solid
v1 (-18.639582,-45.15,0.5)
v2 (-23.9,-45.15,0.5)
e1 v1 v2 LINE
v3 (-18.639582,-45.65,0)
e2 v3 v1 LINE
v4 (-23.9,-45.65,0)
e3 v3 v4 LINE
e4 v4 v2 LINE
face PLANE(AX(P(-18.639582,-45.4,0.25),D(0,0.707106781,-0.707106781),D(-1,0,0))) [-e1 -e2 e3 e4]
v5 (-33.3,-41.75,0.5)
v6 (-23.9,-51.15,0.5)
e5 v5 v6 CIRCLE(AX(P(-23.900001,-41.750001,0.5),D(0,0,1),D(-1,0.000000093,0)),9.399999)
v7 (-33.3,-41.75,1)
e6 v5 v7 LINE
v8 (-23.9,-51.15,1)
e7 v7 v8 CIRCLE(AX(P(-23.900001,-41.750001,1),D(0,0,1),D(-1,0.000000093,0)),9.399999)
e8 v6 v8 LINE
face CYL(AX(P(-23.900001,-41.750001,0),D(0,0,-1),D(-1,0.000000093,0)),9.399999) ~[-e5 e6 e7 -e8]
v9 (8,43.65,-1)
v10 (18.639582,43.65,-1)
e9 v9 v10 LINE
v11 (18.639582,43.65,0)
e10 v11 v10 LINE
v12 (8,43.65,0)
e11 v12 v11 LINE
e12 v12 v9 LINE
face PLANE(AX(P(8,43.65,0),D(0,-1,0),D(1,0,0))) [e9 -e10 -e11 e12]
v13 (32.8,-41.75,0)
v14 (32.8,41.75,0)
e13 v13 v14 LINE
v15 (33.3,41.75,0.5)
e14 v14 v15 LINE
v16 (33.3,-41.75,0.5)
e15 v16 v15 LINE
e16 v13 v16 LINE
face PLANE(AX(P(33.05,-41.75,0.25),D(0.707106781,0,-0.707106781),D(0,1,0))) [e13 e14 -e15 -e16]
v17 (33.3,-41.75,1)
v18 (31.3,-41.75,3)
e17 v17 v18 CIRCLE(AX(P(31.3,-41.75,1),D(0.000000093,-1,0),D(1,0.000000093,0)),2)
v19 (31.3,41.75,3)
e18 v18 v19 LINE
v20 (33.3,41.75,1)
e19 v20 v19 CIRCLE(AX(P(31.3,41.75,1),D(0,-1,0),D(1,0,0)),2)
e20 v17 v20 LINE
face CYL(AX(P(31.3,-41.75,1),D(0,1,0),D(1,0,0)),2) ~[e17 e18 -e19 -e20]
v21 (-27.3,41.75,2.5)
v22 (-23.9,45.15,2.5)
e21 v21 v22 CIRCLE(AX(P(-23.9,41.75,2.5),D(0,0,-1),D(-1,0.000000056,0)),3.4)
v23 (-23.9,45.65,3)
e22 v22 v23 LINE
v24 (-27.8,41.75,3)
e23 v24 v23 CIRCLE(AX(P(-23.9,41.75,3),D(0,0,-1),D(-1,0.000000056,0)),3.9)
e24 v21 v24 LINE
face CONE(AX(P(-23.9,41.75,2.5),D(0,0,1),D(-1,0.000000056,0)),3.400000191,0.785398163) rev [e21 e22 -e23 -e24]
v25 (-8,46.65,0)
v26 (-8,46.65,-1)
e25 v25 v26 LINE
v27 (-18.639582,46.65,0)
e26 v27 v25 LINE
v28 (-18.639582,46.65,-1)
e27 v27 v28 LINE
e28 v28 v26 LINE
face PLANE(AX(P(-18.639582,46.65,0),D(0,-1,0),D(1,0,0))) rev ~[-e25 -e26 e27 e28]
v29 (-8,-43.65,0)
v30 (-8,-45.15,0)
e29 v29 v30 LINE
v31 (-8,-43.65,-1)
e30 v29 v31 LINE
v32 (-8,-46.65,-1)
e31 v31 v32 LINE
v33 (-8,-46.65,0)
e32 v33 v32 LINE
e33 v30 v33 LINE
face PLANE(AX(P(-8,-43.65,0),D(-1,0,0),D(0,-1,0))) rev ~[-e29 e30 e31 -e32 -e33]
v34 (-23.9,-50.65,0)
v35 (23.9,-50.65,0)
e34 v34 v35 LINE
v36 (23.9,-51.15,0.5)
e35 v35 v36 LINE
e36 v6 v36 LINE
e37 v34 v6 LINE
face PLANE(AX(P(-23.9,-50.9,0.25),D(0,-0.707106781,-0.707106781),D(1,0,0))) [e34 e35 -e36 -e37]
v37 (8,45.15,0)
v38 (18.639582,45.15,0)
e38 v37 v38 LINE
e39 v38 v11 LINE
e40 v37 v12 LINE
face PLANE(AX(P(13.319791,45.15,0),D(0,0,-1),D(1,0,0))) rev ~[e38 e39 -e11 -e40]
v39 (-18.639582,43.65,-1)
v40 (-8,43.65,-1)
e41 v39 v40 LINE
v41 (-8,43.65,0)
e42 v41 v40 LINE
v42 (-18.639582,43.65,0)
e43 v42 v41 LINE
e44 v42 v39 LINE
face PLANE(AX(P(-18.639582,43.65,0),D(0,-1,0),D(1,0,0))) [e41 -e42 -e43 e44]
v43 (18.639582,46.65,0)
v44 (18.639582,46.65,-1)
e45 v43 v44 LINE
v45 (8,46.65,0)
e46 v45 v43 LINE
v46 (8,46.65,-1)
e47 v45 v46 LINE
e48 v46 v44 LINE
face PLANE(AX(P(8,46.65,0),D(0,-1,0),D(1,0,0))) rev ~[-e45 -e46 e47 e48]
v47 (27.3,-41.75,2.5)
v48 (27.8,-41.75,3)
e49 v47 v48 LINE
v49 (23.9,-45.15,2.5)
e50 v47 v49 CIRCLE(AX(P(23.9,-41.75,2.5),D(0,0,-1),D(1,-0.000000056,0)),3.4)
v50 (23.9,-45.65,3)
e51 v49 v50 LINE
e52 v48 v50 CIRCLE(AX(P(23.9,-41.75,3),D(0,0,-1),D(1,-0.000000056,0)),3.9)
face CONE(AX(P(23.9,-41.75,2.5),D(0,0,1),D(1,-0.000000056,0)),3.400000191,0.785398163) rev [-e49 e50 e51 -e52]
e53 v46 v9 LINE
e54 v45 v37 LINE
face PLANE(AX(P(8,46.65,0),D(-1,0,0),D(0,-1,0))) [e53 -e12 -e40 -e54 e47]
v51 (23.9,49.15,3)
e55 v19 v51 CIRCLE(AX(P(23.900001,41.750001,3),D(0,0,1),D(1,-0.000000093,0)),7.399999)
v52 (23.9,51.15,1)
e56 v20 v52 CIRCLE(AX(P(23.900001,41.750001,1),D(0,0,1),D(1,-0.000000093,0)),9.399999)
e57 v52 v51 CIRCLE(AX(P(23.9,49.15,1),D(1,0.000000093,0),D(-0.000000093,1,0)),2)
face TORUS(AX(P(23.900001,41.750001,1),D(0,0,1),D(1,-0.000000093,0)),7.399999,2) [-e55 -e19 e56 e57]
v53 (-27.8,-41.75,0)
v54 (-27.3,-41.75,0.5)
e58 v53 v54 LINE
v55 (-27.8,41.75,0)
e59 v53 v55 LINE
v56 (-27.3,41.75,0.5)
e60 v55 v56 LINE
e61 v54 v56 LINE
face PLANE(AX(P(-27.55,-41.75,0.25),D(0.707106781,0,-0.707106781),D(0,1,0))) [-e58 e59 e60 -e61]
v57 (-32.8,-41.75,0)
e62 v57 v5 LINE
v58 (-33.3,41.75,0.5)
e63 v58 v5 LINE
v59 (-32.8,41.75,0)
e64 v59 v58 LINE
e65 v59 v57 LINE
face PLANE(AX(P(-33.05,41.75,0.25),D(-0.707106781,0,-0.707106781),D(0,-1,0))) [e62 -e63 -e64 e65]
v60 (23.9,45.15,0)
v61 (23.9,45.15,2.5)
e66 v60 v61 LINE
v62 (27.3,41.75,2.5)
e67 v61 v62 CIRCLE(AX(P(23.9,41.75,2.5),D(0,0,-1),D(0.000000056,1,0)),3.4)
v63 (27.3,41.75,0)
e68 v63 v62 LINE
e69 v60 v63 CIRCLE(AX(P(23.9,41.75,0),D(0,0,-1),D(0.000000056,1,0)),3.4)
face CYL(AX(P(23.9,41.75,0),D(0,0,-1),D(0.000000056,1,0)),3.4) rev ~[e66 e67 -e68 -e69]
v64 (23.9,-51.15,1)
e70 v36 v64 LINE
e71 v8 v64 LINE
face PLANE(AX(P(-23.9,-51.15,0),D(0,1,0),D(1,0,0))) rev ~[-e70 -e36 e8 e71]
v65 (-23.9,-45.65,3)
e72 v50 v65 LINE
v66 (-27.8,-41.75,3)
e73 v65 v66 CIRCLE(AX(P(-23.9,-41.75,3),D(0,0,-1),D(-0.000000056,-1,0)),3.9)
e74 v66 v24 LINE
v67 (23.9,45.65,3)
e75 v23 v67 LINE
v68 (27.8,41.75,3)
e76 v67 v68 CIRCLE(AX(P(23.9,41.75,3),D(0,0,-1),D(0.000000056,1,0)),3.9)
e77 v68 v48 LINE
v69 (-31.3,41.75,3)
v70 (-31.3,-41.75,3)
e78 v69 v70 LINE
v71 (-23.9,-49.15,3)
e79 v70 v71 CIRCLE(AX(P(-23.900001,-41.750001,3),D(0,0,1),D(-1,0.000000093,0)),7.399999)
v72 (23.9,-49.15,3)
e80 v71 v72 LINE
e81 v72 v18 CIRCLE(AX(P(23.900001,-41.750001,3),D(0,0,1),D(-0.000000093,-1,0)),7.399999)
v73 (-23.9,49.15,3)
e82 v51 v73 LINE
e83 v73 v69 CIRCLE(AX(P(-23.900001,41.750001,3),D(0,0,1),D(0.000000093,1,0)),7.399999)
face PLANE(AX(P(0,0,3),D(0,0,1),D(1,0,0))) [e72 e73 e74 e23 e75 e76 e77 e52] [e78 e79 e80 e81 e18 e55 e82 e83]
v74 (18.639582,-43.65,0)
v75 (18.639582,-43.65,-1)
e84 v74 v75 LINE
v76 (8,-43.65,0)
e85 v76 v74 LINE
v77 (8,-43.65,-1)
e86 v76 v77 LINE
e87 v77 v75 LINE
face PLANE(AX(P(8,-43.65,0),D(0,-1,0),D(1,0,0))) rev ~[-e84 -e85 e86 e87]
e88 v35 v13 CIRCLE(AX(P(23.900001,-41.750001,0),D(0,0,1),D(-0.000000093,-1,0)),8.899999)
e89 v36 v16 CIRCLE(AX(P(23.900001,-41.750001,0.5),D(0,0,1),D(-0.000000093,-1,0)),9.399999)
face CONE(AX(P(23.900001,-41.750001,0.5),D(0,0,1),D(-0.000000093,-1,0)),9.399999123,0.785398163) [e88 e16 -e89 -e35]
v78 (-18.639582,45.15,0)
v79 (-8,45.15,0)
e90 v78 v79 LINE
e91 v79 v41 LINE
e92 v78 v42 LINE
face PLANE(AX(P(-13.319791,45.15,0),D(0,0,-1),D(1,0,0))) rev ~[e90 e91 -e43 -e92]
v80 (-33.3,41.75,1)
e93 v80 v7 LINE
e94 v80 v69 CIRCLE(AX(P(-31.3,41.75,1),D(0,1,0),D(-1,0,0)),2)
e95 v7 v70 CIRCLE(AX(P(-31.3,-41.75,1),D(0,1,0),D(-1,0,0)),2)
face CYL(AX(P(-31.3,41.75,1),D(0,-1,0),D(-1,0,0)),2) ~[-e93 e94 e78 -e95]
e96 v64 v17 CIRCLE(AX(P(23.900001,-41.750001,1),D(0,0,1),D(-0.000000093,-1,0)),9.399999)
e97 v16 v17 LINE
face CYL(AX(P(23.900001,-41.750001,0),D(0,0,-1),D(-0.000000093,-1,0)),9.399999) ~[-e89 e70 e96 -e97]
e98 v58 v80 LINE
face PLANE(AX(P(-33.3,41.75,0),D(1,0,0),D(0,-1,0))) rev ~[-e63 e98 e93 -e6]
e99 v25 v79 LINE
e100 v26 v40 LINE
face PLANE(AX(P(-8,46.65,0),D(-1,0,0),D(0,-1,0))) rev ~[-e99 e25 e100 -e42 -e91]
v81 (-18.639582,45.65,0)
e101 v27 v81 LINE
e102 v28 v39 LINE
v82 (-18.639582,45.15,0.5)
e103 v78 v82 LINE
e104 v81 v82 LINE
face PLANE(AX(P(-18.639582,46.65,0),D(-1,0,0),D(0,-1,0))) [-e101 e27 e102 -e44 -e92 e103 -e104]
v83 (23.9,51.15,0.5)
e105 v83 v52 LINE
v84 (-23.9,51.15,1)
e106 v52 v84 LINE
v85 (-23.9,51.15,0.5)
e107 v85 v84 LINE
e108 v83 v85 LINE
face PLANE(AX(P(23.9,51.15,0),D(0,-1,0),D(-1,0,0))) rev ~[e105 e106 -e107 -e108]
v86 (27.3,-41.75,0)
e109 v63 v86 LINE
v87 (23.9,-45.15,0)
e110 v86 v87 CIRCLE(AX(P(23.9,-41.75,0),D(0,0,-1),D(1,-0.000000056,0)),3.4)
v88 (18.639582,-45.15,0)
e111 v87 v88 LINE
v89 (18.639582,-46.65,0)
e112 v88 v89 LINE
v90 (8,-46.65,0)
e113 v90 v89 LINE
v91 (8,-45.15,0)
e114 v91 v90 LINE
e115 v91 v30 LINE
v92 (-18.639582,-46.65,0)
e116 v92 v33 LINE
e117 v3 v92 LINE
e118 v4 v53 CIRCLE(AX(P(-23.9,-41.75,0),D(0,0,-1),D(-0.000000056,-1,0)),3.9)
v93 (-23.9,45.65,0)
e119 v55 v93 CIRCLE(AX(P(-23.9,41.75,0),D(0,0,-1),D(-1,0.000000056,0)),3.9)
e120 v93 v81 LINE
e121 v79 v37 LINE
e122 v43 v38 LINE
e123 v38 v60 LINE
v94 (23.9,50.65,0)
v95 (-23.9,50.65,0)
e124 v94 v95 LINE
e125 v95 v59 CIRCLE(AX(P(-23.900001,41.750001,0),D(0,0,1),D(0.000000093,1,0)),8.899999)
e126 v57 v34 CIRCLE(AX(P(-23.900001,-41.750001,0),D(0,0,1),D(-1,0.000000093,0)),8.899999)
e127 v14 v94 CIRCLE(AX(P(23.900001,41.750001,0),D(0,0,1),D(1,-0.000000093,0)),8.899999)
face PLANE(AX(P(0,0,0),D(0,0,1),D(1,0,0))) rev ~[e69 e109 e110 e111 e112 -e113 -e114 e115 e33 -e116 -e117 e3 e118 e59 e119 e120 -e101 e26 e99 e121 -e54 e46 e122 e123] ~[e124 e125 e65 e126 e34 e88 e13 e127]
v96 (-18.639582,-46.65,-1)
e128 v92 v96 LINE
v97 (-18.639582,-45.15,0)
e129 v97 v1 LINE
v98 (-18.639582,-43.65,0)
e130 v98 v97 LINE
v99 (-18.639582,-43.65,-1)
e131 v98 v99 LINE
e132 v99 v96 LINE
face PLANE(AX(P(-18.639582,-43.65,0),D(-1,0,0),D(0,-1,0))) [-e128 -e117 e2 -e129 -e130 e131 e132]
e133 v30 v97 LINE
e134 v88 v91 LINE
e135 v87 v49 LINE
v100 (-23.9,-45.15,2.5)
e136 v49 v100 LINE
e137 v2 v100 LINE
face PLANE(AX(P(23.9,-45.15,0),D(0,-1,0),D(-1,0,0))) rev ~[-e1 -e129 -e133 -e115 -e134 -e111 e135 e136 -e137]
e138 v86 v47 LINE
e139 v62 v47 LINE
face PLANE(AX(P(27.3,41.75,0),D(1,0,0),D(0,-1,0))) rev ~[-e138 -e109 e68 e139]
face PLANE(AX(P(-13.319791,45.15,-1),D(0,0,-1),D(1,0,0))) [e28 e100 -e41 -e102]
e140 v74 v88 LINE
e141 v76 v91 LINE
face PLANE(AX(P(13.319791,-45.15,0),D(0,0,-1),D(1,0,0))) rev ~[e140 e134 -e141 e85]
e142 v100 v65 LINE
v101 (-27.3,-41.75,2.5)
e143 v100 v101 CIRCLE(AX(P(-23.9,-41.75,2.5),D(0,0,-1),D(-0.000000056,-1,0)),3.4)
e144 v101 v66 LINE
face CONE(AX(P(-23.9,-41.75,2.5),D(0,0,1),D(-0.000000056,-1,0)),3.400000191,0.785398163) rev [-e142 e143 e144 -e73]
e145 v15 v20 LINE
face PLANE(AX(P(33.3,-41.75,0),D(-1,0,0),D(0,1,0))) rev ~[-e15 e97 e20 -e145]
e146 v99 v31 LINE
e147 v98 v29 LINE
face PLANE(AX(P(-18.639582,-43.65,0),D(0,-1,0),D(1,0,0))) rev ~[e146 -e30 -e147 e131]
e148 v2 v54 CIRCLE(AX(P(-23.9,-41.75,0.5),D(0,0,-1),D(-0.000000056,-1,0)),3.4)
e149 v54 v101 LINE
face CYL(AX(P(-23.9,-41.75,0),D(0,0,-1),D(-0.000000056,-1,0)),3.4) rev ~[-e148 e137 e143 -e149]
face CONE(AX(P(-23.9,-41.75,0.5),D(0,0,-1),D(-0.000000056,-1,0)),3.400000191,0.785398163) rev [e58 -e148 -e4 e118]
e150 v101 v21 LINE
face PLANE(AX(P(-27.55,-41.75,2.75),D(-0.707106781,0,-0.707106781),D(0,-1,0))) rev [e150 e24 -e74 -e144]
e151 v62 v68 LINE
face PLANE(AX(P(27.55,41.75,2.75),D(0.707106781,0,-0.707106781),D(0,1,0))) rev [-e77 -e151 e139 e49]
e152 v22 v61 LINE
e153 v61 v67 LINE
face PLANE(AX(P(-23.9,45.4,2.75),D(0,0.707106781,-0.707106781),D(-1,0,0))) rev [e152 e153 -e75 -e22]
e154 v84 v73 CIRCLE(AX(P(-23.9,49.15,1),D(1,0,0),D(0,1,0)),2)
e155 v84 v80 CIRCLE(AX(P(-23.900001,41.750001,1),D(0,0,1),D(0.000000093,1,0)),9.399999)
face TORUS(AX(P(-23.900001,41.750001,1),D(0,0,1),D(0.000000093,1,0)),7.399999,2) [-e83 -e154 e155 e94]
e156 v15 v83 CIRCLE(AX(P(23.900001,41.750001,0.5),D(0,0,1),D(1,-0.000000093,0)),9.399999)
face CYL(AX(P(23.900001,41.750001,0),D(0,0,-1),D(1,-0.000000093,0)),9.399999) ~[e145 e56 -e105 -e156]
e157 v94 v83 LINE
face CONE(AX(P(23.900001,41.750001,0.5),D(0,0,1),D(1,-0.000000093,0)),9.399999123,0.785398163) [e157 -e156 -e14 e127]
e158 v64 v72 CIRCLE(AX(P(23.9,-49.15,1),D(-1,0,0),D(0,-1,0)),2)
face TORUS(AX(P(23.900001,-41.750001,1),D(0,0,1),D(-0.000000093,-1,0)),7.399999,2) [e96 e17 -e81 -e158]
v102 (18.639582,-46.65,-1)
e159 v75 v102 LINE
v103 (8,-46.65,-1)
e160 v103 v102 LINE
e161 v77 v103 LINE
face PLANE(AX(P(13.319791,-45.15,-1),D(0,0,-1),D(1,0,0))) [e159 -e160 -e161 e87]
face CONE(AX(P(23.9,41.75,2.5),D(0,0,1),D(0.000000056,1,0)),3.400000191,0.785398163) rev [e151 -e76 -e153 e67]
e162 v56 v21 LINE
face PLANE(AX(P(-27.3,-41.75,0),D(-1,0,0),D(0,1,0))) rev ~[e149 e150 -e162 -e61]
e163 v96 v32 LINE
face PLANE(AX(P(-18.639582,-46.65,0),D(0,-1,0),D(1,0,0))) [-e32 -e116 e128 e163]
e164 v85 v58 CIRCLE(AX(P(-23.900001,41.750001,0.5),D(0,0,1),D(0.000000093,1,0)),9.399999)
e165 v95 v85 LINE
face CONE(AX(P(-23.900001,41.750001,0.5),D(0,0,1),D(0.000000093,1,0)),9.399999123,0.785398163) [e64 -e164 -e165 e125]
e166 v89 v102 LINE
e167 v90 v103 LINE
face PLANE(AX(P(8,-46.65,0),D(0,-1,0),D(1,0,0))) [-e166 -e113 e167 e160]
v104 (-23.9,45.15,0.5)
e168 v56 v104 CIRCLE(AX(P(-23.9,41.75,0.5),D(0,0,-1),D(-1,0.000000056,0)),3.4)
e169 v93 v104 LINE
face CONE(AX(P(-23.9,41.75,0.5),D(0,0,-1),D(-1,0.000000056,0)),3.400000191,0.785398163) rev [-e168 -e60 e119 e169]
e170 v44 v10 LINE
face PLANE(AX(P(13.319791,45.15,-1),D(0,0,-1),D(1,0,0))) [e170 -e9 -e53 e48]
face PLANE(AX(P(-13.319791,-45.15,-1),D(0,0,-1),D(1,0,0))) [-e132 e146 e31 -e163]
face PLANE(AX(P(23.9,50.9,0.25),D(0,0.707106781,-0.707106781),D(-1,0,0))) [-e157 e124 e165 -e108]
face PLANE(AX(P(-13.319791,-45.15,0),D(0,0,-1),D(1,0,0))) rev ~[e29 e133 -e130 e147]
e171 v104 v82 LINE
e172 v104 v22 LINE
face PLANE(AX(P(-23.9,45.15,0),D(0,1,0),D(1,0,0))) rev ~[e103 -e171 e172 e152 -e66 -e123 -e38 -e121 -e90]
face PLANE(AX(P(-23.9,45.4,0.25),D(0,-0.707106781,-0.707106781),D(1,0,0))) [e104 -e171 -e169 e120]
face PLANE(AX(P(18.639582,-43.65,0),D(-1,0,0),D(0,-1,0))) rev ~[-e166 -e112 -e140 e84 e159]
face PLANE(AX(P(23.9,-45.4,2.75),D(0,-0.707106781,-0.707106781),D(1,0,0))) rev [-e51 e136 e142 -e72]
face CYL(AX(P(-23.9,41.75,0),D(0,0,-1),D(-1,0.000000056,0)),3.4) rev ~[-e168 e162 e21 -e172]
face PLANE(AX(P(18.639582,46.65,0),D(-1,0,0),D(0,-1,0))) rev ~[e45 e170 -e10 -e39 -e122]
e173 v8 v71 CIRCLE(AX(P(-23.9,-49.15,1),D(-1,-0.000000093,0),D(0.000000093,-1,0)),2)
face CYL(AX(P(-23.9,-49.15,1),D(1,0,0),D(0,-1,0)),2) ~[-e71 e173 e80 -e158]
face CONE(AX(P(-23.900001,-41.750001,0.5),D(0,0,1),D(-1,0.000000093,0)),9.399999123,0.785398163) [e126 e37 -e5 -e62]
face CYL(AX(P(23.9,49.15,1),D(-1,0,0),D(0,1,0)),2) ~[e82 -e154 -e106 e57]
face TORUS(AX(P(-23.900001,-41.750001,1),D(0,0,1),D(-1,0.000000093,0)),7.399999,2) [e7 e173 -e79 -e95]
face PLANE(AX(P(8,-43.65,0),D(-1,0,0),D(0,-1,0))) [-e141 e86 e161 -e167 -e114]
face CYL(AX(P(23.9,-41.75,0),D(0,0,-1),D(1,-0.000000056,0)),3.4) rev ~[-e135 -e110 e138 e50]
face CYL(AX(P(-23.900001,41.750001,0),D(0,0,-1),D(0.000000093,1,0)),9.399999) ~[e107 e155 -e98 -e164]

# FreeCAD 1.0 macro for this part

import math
import FreeCAD as App
import Part
import Sketcher
Q = App.Units.Quantity


def edges_at(feature, points):
    """Names of the edges that pass closest to the given points."""
    edges = feature.Shape.Edges
    near = lambda p: min(range(len(edges)), key=lambda i: edges[i].distToShape(Part.Vertex(*p))[0])
    return sorted({f"Edge{near(p) + 1}" for p in points})


def add_polygon(sketch, points):
    """Adds a closed chain of lines whose ends are joined by coincident constraints."""
    first, n = sketch.GeometryCount, len(points)
    for a, b in zip(points, points[1:] + points[:1]):
        sketch.addGeometry(Part.LineSegment(App.Vector(*a, 0), App.Vector(*b, 0)), False)
    for i in range(n):
        sketch.addConstraint(Sketcher.Constraint("Coincident", first + i, 2, first + (i + 1) % n, 1))

doc = App.newDocument("Part")
body = doc.addObject("PartDesign::Body", "Body")

# Sketch on XY plane
sketch1 = body.newObject("Sketcher::SketchObject", "Sketch")
sketch1.AttachmentSupport = (doc.getObject("XY_Plane"), [""])
sketch1.MapMode = "FlatFace"
sketch1.addGeometry([
    Part.LineSegment(App.Vector(-33.3, 41.8, 0), App.Vector(-33.3, -41.8, 0)),  # 0
    Part.ArcOfCircle(Part.Circle(App.Vector(-23.9, -41.8, 0), App.Vector(0, 0, 1), 9.4), math.radians(180), math.radians(270)),  # 1
    Part.LineSegment(App.Vector(-23.9, -51.1, 0), App.Vector(23.9, -51.1, 0)),  # 2
    Part.ArcOfCircle(Part.Circle(App.Vector(23.9, -41.8, 0), App.Vector(0, 0, 1), 9.4), math.radians(-90), math.radians(0)),  # 3
    Part.LineSegment(App.Vector(33.3, -41.8, 0), App.Vector(33.3, 41.8, 0)),  # 4
    Part.ArcOfCircle(Part.Circle(App.Vector(23.9, 41.8, 0), App.Vector(0, 0, 1), 9.4), math.radians(0), math.radians(90)),  # 5
    Part.LineSegment(App.Vector(23.9, 51.1, 0), App.Vector(-23.9, 51.1, 0)),  # 6
    Part.ArcOfCircle(Part.Circle(App.Vector(-23.9, 41.8, 0), App.Vector(0, 0, 1), 9.4), math.radians(90), math.radians(180)),  # 7
    Part.LineSegment(App.Vector(27.3, 41.8, 0), App.Vector(27.3, -41.8, 0)),  # 8
    Part.ArcOfCircle(Part.Circle(App.Vector(23.9, -41.7, 0), App.Vector(0, 0, 1), 3.4), math.radians(-90), math.radians(0)),  # 9
    Part.LineSegment(App.Vector(23.9, -45.1, 0), App.Vector(-23.9, -45.1, 0)),  # 10
    Part.ArcOfCircle(Part.Circle(App.Vector(-23.9, -41.7, 0), App.Vector(0, 0, 1), 3.4), math.radians(-180), math.radians(-90)),  # 11
    Part.LineSegment(App.Vector(-27.3, -41.8, 0), App.Vector(-27.3, 41.8, 0)),  # 12
    Part.ArcOfCircle(Part.Circle(App.Vector(-23.9, 41.7, 0), App.Vector(0, 0, 1), 3.4), math.radians(90), math.radians(180)),  # 13
    Part.LineSegment(App.Vector(-23.9, 45.1, 0), App.Vector(23.9, 45.1, 0)),  # 14
    Part.ArcOfCircle(Part.Circle(App.Vector(23.9, 41.7, 0), App.Vector(0, 0, 1), 3.4), math.radians(0), math.radians(90)),  # 15
], False)
sketch1.addConstraint([
    Sketcher.Constraint("Tangent", 0, 2, 1, 1),
    Sketcher.Constraint("Tangent", 1, 2, 2, 1),
    Sketcher.Constraint("Tangent", 2, 2, 3, 1),
    Sketcher.Constraint("Tangent", 3, 2, 4, 1),
    Sketcher.Constraint("Tangent", 4, 2, 5, 1),
    Sketcher.Constraint("Tangent", 5, 2, 6, 1),
    Sketcher.Constraint("Tangent", 6, 2, 7, 1),
    Sketcher.Constraint("Tangent", 7, 2, 0, 1),
    Sketcher.Constraint("Tangent", 8, 2, 9, 2),
    Sketcher.Constraint("Tangent", 9, 1, 10, 1),
    Sketcher.Constraint("Tangent", 10, 2, 11, 2),
    Sketcher.Constraint("Tangent", 11, 1, 12, 1),
    Sketcher.Constraint("Tangent", 12, 2, 13, 2),
    Sketcher.Constraint("Tangent", 13, 1, 14, 1),
    Sketcher.Constraint("Tangent", 14, 2, 15, 2),
    Sketcher.Constraint("Tangent", 15, 1, 8, 1),
    Sketcher.Constraint("Vertical", 0),
    Sketcher.Constraint("Horizontal", 2),
    Sketcher.Constraint("Vertical", 4),
    Sketcher.Constraint("Horizontal", 6),
    Sketcher.Constraint("Vertical", 8),
    Sketcher.Constraint("Horizontal", 10),
    Sketcher.Constraint("Vertical", 12),
    Sketcher.Constraint("Horizontal", 14),
    Sketcher.Constraint("Coincident", 9, 3, 3, 3),
    Sketcher.Constraint("Coincident", 11, 3, 1, 3),
    Sketcher.Constraint("Coincident", 13, 3, 7, 3),
    Sketcher.Constraint("Equal", 1, 3),
    Sketcher.Constraint("Equal", 3, 5),
    Sketcher.Constraint("Equal", 5, 7),
    Sketcher.Constraint("Equal", 13, 15),
    Sketcher.Constraint("Symmetric", 1, 3, 5, 3, -1, 1),
    Sketcher.Constraint("Radius", 1, Q("9.399999 mm")),
    Sketcher.Constraint("Radius", 9, Q("3.4 mm")),
    Sketcher.Constraint("DistanceX", 2, 1, 2, 2, Q("47.8 mm")),
    Sketcher.Constraint("DistanceY", 0, 2, 0, 1, Q("83.5 mm")),
])
pad1 = body.newObject("PartDesign::Pad", "Pad")
pad1.Profile = sketch1
pad1.Length = 3
doc.recompute()

fillet = body.newObject("PartDesign::Fillet", "Fillet")
fillet.Base = (pad1, edges_at(pad1, [(-33.3, 0, 3)]))
fillet.Radius = 2

# Sketch on XY plane
sketch2 = body.newObject("Sketcher::SketchObject", "Sketch001")
sketch2.AttachmentSupport = (doc.getObject("XY_Plane"), [""])
sketch2.MapMode = "FlatFace"
add_polygon(sketch2, [(-18.6, 43.6), (-18.6, 46.6), (-8, 46.6), (-8, 43.6)])  # lines 0-3
add_polygon(sketch2, [(8, 43.6), (8, 46.6), (18.6, 46.6), (18.6, 43.6)])  # lines 4-7
add_polygon(sketch2, [(-18.6, -46.6), (-18.6, -43.6), (-8, -43.6), (-8, -46.6)])  # lines 8-11
add_polygon(sketch2, [(8, -46.6), (8, -43.6), (18.6, -43.6), (18.6, -46.6)])  # lines 12-15
sketch2.addConstraint([
    Sketcher.Constraint("Vertical", 0),
    Sketcher.Constraint("Horizontal", 1),
    Sketcher.Constraint("Vertical", 2),
    Sketcher.Constraint("Horizontal", 3),
    Sketcher.Constraint("Vertical", 4),
    Sketcher.Constraint("Horizontal", 5),
    Sketcher.Constraint("Vertical", 6),
    Sketcher.Constraint("Horizontal", 7),
    Sketcher.Constraint("Vertical", 8),
    Sketcher.Constraint("Horizontal", 9),
    Sketcher.Constraint("Vertical", 10),
    Sketcher.Constraint("Horizontal", 11),
    Sketcher.Constraint("Vertical", 12),
    Sketcher.Constraint("Horizontal", 13),
    Sketcher.Constraint("Vertical", 14),
    Sketcher.Constraint("Horizontal", 15),
    Sketcher.Constraint("Symmetric", 6, 2, 8, 2, -1, 1),
    Sketcher.Constraint("Symmetric", 4, 2, 10, 2, -1, 1),
    Sketcher.Constraint("Symmetric", 2, 2, 12, 2, -1, 1),
    Sketcher.Constraint("Symmetric", 0, 2, 14, 2, -1, 1),
    Sketcher.Constraint("Symmetric", 1, 2, 4, 2, -2),
    Sketcher.Constraint("Symmetric", 3, 2, 6, 2, -2),
    Sketcher.Constraint("DistanceY", 0, 1, 0, 2, Q("3 mm")),
    Sketcher.Constraint("DistanceX", 1, 2, -1, 1, Q("8 mm")),
    Sketcher.Constraint("DistanceY", 8, 2, 3, 2, Q("87.3 mm")),
    Sketcher.Constraint("DistanceX", 1, 1, 1, 2, Q("10.639583 mm")),
])
pad2 = body.newObject("PartDesign::Pad", "Pad001")
pad2.Profile = sketch2
pad2.Length = 1
pad2.Reversed = True
doc.recompute()

chamfer = body.newObject("PartDesign::Chamfer", "Chamfer")
chamfer.Base = (pad2, edges_at(pad2, [(0, 45.15, 3), (-27.3, 0, 0), (-33.3, 0, 0)]))
chamfer.Size = 0.5

doc.recompute()
